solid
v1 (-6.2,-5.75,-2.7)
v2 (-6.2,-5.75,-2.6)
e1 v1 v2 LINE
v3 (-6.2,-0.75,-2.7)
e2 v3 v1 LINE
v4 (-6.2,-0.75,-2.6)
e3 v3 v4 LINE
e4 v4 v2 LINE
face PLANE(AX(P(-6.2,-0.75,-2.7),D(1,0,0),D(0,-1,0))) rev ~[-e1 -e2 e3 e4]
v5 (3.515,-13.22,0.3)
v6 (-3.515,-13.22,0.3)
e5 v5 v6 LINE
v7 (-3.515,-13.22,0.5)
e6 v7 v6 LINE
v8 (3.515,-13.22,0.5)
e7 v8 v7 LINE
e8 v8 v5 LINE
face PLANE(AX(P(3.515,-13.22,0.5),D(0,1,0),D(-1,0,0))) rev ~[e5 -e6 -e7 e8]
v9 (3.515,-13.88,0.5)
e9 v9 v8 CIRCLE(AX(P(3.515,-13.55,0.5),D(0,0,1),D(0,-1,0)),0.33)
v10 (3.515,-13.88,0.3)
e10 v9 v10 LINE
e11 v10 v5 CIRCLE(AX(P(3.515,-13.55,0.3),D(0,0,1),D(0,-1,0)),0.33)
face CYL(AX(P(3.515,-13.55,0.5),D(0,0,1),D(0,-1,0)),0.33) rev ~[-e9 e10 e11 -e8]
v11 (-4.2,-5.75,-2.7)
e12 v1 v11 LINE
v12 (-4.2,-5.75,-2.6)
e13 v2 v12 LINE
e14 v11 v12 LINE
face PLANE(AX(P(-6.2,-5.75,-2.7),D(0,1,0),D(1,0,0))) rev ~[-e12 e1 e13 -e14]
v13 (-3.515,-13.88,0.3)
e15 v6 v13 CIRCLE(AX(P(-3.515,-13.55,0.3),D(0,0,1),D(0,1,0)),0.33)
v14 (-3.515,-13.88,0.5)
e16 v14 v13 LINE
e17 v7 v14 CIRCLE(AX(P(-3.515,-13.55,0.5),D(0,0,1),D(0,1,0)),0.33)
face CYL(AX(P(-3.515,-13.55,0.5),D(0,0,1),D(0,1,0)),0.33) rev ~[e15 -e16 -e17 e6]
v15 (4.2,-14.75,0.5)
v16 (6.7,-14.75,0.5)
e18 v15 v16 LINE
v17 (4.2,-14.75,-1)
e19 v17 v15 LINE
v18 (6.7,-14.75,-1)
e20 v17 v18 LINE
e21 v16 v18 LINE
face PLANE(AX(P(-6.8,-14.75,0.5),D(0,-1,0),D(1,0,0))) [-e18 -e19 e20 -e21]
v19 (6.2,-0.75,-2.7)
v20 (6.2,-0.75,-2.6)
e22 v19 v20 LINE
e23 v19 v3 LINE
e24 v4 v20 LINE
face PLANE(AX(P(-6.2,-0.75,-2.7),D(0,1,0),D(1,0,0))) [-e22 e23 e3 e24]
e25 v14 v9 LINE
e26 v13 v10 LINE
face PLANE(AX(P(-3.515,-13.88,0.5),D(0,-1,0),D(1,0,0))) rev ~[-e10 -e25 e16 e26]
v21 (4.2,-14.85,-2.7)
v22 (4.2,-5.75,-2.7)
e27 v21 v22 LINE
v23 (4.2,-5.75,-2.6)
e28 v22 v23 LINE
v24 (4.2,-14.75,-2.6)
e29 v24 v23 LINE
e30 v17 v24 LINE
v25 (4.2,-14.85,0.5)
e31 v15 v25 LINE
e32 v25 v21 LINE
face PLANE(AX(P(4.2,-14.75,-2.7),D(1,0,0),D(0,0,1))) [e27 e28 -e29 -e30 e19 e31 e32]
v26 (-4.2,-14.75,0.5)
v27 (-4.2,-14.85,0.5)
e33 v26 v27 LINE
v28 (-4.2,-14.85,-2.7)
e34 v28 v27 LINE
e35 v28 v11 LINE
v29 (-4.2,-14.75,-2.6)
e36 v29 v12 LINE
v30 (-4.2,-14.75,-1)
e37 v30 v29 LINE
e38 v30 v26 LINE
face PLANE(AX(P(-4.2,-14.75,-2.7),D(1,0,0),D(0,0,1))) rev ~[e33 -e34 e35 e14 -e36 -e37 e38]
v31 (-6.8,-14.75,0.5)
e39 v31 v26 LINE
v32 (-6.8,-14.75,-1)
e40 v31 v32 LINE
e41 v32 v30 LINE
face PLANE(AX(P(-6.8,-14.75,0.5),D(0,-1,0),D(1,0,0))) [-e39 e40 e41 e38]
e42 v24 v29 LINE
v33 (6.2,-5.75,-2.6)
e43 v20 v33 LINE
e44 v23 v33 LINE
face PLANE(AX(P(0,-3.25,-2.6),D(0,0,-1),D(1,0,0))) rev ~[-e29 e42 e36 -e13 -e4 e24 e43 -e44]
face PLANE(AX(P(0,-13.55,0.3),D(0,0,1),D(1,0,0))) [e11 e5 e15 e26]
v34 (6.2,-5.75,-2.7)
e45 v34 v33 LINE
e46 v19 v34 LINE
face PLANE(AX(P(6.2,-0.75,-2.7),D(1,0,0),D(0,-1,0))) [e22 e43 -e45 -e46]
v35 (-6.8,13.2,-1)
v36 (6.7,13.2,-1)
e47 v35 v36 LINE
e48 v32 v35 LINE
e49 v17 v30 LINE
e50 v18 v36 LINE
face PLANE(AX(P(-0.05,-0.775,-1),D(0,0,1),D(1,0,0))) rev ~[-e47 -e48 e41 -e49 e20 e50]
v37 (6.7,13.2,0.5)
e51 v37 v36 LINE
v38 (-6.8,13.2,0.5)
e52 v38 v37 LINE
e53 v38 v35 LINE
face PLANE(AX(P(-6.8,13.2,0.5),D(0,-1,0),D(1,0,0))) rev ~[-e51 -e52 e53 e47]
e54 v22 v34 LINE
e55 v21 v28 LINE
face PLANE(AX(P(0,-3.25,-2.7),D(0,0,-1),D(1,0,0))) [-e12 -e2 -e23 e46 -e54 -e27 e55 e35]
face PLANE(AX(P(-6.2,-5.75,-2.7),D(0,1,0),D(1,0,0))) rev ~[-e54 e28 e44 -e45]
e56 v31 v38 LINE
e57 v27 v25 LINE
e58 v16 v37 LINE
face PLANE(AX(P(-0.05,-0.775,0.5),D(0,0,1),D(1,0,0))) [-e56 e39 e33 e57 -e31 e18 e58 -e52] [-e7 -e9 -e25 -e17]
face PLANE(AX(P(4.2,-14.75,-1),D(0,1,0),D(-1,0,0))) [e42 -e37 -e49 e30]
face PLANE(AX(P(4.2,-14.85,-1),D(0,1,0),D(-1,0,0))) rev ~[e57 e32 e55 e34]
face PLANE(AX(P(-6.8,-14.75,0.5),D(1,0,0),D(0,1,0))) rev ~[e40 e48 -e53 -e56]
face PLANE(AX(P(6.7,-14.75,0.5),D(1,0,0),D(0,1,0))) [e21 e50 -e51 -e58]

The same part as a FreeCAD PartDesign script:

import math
import FreeCAD as App
import Part
import Sketcher
from FreeCAD import Vector
Q = App.Units.Quantity


def add_polygon(sketch, points):
    """Adds a closed chain of lines whose ends are joined by coincident constraints."""
    first, n = sketch.GeometryCount, len(points)
    for a, b in zip(points, points[1:] + points[:1]):
        sketch.addGeometry(Part.LineSegment(App.Vector(*a, 0), App.Vector(*b, 0)), False)
    for i in range(n):
        sketch.addConstraint(Sketcher.Constraint("Coincident", first + i, 2, first + (i + 1) % n, 1))

doc = App.newDocument("Part")
params = doc.addObject("Spreadsheet::Sheet", "Params")
for row, (alias, value) in enumerate([
    ("sketch1_width", "10.8 mm"),
    ("sketch1_height", "21.7 mm"),
    ("pad1_length", "0.5 mm"),
    ("sketch2_width", "12.8 mm"),
    ("sketch2_height", "24.6 mm"),
    ("pad2_length", "0.6 mm"),
    ("sketch3_width", "13.5 mm"),
    ("sketch3_height", "27.95 mm"),
    ("pad3_length", "1.5 mm"),
    ("sketch4_width", "8.4 mm"),
    ("sketch4_height", "1.5 mm"),
    ("pad4_length", "0.1 mm"),
    ("sketch5_width", "8.4 mm"),
    ("sketch5_height", "0.1 mm"),
    ("pad5_length", "1.7 mm"),
    ("sketch6_width", "8.4 mm"),
    ("sketch6_height", "0.1 mm"),
    ("pad6_length", "14 mm"),
    ("sketch7_height", "5 mm"),
    ("sketch7_width", "12.4 mm"),
    ("pad7_length", "0.1 mm"),
    ("sketch8_radius", "0.33 mm"),
    ("sketch8_width", "7.03 mm"),
    ("pocket1_length", "0.2 mm"),
], start=1):
    params.set(f"A{row}", alias)
    params.set(f"B{row}", "=" + value)
    params.setAlias(f"B{row}", alias)

body = doc.addObject("PartDesign::Body", "Body")

sketch1 = body.newObject("Sketcher::SketchObject", "Sketch")
sketch1.AttachmentSupport = (doc.getObject("XY_Plane"), [""])
sketch1.MapMode = "FlatFace"
add_polygon(sketch1, [(-5.4, 10.85), (-5.4, -10.85), (5.4, -10.85), (5.4, 10.85)])
sketch1.addConstraint([
    Sketcher.Constraint("Vertical", 0),
    Sketcher.Constraint("Horizontal", 1),
    Sketcher.Constraint("Vertical", 2),
    Sketcher.Constraint("Horizontal", 3),
    Sketcher.Constraint("Symmetric", 0, 2, 2, 2, -1, 1),
    Sketcher.Constraint("DistanceX", 1, 1, 1, 2, Q("10.8 mm")),
    Sketcher.Constraint("DistanceY", 0, 2, 0, 1, Q("21.7 mm")),
])
sketch1.setExpression("Constraints[9]", "Params.sketch1_width")
sketch1.setExpression("Constraints[10]", "Params.sketch1_height")
pad1 = body.newObject("PartDesign::Pad", "Pad")
pad1.Profile = sketch1
pad1.setExpression("Length", "Params.pad1_length")

sketch2 = body.newObject("Sketcher::SketchObject", "Sketch001")
sketch2.AttachmentSupport = (doc.getObject("XY_Plane"), [""])
sketch2.MapMode = "FlatFace"
sketch2.AttachmentOffset = App.Placement(Vector(0, 0, 0.5), App.Rotation())
add_polygon(sketch2, [(-6.4, 12.3), (-6.4, -12.3), (6.4, -12.3), (6.4, 12.3)])
sketch2.addConstraint([
    Sketcher.Constraint("Vertical", 0),
    Sketcher.Constraint("Horizontal", 1),
    Sketcher.Constraint("Vertical", 2),
    Sketcher.Constraint("Horizontal", 3),
    Sketcher.Constraint("Symmetric", 0, 2, 2, 2, -1, 1),
    Sketcher.Constraint("DistanceX", 1, 1, 1, 2, Q("12.8 mm")),
    Sketcher.Constraint("DistanceY", 0, 2, 0, 1, Q("24.6 mm")),
])
sketch2.setExpression("Constraints[9]", "Params.sketch2_width")
sketch2.setExpression("Constraints[10]", "Params.sketch2_height")
pad2 = body.newObject("PartDesign::Pad", "Pad001")
pad2.Profile = sketch2
pad2.setExpression("Length", "Params.pad2_length")
pad2.Reversed = True

sketch3 = body.newObject("Sketcher::SketchObject", "Sketch002")
sketch3.AttachmentSupport = (doc.getObject("XY_Plane"), [""])
sketch3.MapMode = "FlatFace"
sketch3.AttachmentOffset = App.Placement(Vector(0, 0, 0.5), App.Rotation())
add_polygon(sketch3, [(-6.8, 13.2), (-6.8, -14.75), (6.7, -14.75), (6.7, 13.2)])
sketch3.addConstraint([
    Sketcher.Constraint("Vertical", 0),
    Sketcher.Constraint("Horizontal", 1),
    Sketcher.Constraint("Vertical", 2),
    Sketcher.Constraint("Horizontal", 3),
    Sketcher.Constraint("DistanceX", 1, 1, 1, 2, Q("13.5 mm")),
    Sketcher.Constraint("DistanceY", 0, 2, 0, 1, Q("27.95 mm")),
    Sketcher.Constraint("DistanceX", 0, 2, -1, 1, Q("6.8 mm")),
    Sketcher.Constraint("DistanceY", -1, 1, 2, 2, Q("13.2 mm")),
])
sketch3.setExpression("Constraints[8]", "Params.sketch3_width")
sketch3.setExpression("Constraints[9]", "Params.sketch3_height")
pad3 = body.newObject("PartDesign::Pad", "Pad002")
pad3.Profile = sketch3
pad3.setExpression("Length", "Params.pad3_length")
pad3.Reversed = True

sketch4 = body.newObject("Sketcher::SketchObject", "Sketch003")
sketch4.AttachmentSupport = (doc.getObject("XZ_Plane"), [""])
sketch4.MapMode = "FlatFace"
sketch4.AttachmentOffset = App.Placement(Vector(0, 0, 14.75), App.Rotation())
add_polygon(sketch4, [(-4.2, 0.5), (-4.2, -1), (4.2, -1), (4.2, 0.5)])
sketch4.addConstraint([
    Sketcher.Constraint("Vertical", 0),
    Sketcher.Constraint("Horizontal", 1),
    Sketcher.Constraint("Vertical", 2),
    Sketcher.Constraint("Horizontal", 3),
    Sketcher.Constraint("DistanceX", 1, 1, 1, 2, Q("8.4 mm")),
    Sketcher.Constraint("DistanceY", 0, 2, 0, 1, Q("1.5 mm")),
    Sketcher.Constraint("DistanceY", 0, 2, -1, 1, Q("1 mm")),
    Sketcher.Constraint("DistanceX", 0, 2, -1, 1, Q("4.2 mm")),
])
sketch4.setExpression("Constraints[8]", "Params.sketch4_width")
sketch4.setExpression("Constraints[9]", "Params.sketch4_height")
pad4 = body.newObject("PartDesign::Pad", "Pad003")
pad4.Profile = sketch4
pad4.setExpression("Length", "Params.pad4_length")

sketch5 = body.newObject("Sketcher::SketchObject", "Sketch004")
sketch5.AttachmentSupport = (doc.getObject("XY_Plane"), [""])
sketch5.MapMode = "FlatFace"
sketch5.AttachmentOffset = App.Placement(Vector(0, 0, -1), App.Rotation())
add_polygon(sketch5, [(-4.2, -14.75), (4.2, -14.75), (4.2, -14.85), (-4.2, -14.85)])
sketch5.addConstraint([
    Sketcher.Constraint("Horizontal", 0),
    Sketcher.Constraint("Vertical", 1),
    Sketcher.Constraint("Horizontal", 2),
    Sketcher.Constraint("Vertical", 3),
    Sketcher.Constraint("DistanceX", 0, 1, 0, 2, Q("8.4 mm")),
    Sketcher.Constraint("DistanceY", 1, 2, 1, 1, Q("0.1 mm")),
    Sketcher.Constraint("DistanceX", -1, 1, 0, 2, Q("4.2 mm")),
    Sketcher.Constraint("DistanceY", 0, 2, -1, 1, Q("14.75 mm")),
])
sketch5.setExpression("Constraints[8]", "Params.sketch5_width")
sketch5.setExpression("Constraints[9]", "Params.sketch5_height")
pad5 = body.newObject("PartDesign::Pad", "Pad004")
pad5.Profile = sketch5
pad5.setExpression("Length", "Params.pad5_length")
pad5.Reversed = True

sketch6 = body.newObject("Sketcher::SketchObject", "Sketch005")
sketch6.AttachmentSupport = (doc.getObject("XZ_Plane"), [""])
sketch6.MapMode = "FlatFace"
sketch6.AttachmentOffset = App.Placement(Vector(0, 0, 14.75), App.Rotation())
add_polygon(sketch6, [(4.2, -2.6), (4.2, -2.7), (-4.2, -2.7), (-4.2, -2.6)])
sketch6.addConstraint([
    Sketcher.Constraint("Vertical", 0),
    Sketcher.Constraint("Horizontal", 1),
    Sketcher.Constraint("Vertical", 2),
    Sketcher.Constraint("Horizontal", 3),
    Sketcher.Constraint("DistanceX", 1, 2, 1, 1, Q("8.4 mm")),
    Sketcher.Constraint("DistanceY", 0, 2, 0, 1, Q("0.1 mm")),
    Sketcher.Constraint("DistanceX", -1, 1, 0, 2, Q("4.2 mm")),
    Sketcher.Constraint("DistanceY", 0, 2, -1, 1, Q("2.7 mm")),
])
sketch6.setExpression("Constraints[8]", "Params.sketch6_width")
sketch6.setExpression("Constraints[9]", "Params.sketch6_height")
pad6 = body.newObject("PartDesign::Pad", "Pad005")
pad6.Profile = sketch6
pad6.setExpression("Length", "Params.pad6_length")
pad6.Reversed = True

sketch7 = body.newObject("Sketcher::SketchObject", "Sketch006")
sketch7.AttachmentSupport = (doc.getObject("XY_Plane"), [""])
sketch7.MapMode = "FlatFace"
sketch7.AttachmentOffset = App.Placement(Vector(0, 0, -2.7), App.Rotation())
add_polygon(sketch7, [(-6.2, -5.75), (-6.2, -0.75), (6.2, -0.75), (6.2, -5.75)])
sketch7.addConstraint([
    Sketcher.Constraint("Vertical", 0),
    Sketcher.Constraint("Horizontal", 1),
    Sketcher.Constraint("Vertical", 2),
    Sketcher.Constraint("Horizontal", 3),
    Sketcher.Constraint("DistanceY", 0, 1, 0, 2, Q("5 mm")),
    Sketcher.Constraint("DistanceX", 1, 1, 1, 2, Q("12.4 mm")),
    Sketcher.Constraint("DistanceX", 0, 2, -1, 1, Q("6.2 mm")),
    Sketcher.Constraint("DistanceY", 0, 2, -1, 1, Q("0.75 mm")),
])
sketch7.setExpression("Constraints[8]", "Params.sketch7_height")
sketch7.setExpression("Constraints[9]", "Params.sketch7_width")
pad7 = body.newObject("PartDesign::Pad", "Pad006")
pad7.Profile = sketch7
pad7.setExpression("Length", "Params.pad7_length")

sketch8 = body.newObject("Sketcher::SketchObject", "Sketch007")
sketch8.AttachmentSupport = (doc.getObject("XY_Plane"), [""])
sketch8.MapMode = "FlatFace"
sketch8.AttachmentOffset = App.Placement(Vector(0, 0, 0.5), App.Rotation())
sketch8.addGeometry([
    Part.ArcOfCircle(Part.Circle(Vector(-3.515, -13.55, 0), Vector(0, 0, 1), 0.33), math.radians(90), math.radians(270)),
    Part.LineSegment(Vector(-3.515, -13.88, 0), Vector(3.515, -13.88, 0)),
    Part.ArcOfCircle(Part.Circle(Vector(3.515, -13.55, 0), Vector(0, 0, 1), 0.33), math.radians(-90), math.radians(90)),
    Part.LineSegment(Vector(3.515, -13.22, 0), Vector(-3.515, -13.22, 0)),
], False)
sketch8.addConstraint([
    Sketcher.Constraint("Tangent", 0, 2, 1, 1),
    Sketcher.Constraint("Tangent", 1, 2, 2, 1),
    Sketcher.Constraint("Tangent", 2, 2, 3, 1),
    Sketcher.Constraint("Tangent", 3, 2, 0, 1),
    Sketcher.Constraint("Horizontal", 1),
    Sketcher.Constraint("Horizontal", 3),
    Sketcher.Constraint("Radius", 0, Q("0.33 mm")),
    Sketcher.Constraint("DistanceX", 1, 1, 1, 2, Q("7.03 mm")),
    Sketcher.Constraint("DistanceY", 0, 3, -1, 1, Q("13.55 mm")),
    Sketcher.Constraint("DistanceX", 0, 3, -1, 1, Q("3.515 mm")),
])
sketch8.setExpression("Constraints[6]", "Params.sketch8_radius")
sketch8.setExpression("Constraints[7]", "Params.sketch8_width")
pocket1 = body.newObject("PartDesign::Pocket", "Pocket")
pocket1.Profile = sketch8
pocket1.setExpression("Length", "Params.pocket1_length")

doc.recompute()
